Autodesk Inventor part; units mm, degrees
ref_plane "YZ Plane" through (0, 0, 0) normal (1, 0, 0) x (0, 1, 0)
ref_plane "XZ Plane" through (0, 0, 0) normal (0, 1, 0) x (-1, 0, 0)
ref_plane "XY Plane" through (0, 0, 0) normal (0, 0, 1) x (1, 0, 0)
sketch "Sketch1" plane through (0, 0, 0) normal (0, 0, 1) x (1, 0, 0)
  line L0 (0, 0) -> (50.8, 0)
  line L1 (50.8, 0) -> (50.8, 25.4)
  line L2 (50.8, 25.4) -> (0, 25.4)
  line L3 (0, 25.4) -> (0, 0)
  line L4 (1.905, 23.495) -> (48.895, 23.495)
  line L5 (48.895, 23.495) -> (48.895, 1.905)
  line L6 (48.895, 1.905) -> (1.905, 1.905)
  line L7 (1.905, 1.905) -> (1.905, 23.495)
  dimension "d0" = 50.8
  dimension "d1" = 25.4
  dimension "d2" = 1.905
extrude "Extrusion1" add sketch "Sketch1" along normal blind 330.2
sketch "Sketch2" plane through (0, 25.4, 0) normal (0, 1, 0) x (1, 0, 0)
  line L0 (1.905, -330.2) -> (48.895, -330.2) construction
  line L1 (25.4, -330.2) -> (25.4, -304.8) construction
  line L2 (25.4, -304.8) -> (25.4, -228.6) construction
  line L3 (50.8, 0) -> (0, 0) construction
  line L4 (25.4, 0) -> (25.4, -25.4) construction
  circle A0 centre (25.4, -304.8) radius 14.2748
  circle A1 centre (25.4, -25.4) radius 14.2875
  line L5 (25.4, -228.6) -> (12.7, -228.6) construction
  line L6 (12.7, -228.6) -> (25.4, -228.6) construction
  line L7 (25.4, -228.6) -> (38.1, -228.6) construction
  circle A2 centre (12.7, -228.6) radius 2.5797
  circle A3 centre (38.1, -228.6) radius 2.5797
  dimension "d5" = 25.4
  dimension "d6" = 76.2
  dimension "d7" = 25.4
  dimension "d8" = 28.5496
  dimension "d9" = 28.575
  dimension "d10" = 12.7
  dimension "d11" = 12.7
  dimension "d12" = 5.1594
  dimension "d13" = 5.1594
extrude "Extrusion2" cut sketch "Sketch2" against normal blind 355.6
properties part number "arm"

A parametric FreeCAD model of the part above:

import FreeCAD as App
import Part
import Sketcher

V = App.Vector
Q = App.Units.Quantity


def add_polygon(sketch, points):
    """Adds a closed chain of lines whose ends are joined by coincident constraints."""
    first, n = sketch.GeometryCount, len(points)
    for a, b in zip(points, points[1:] + points[:1]):
        sketch.addGeometry(Part.LineSegment(App.Vector(*a, 0), App.Vector(*b, 0)), False)
    for i in range(n):
        sketch.addConstraint(Sketcher.Constraint("Coincident", first + i, 2, first + (i + 1) % n, 1))

doc = App.newDocument("Part")
body = doc.addObject("PartDesign::Body", "Body")

sketch1 = body.newObject("Sketcher::SketchObject", "Sketch")
sketch1.AttachmentSupport = (doc.getObject("XY_Plane"), [""])
sketch1.MapMode = "FlatFace"
add_polygon(sketch1, [(0, 25.4), (0, 0), (50.8, 0), (50.8, 25.4)])
add_polygon(sketch1, [(1.905, 1.905), (1.905, 23.495), (48.895, 23.495), (48.895, 1.905)])
sketch1.addConstraint([
    Sketcher.Constraint("Vertical", 0),
    Sketcher.Constraint("Horizontal", 1),
    Sketcher.Constraint("Vertical", 2),
    Sketcher.Constraint("Horizontal", 3),
    Sketcher.Constraint("Vertical", 4),
    Sketcher.Constraint("Horizontal", 5),
    Sketcher.Constraint("Vertical", 6),
    Sketcher.Constraint("Horizontal", 7),
    Sketcher.Constraint("Coincident", 0, 2, -1, 1),
    Sketcher.Constraint("DistanceX", 1, 1, 1, 2, Q("2 in")),
    Sketcher.Constraint("DistanceY", 0, 2, 0, 1, Q("1 in")),
    Sketcher.Constraint("DistanceX", -1, 1, 4, 2, Q("0.075 in")),
    Sketcher.Constraint("DistanceY", -1, 1, 6, 2, Q("0.075 in")),
    Sketcher.Constraint("DistanceY", 4, 2, 3, 2, Q("0.075 in")),
    Sketcher.Constraint("DistanceX", 5, 2, 2, 2, Q("0.075 in")),
])
pad1 = body.newObject("PartDesign::Pad", "Pad")
pad1.Profile = sketch1
pad1.Length = Q("13 in")

sketch2 = body.newObject("Sketcher::SketchObject", "Sketch001")
sketch2.AttachmentSupport = (doc.getObject("XZ_Plane"), [""])
sketch2.MapMode = "FlatFace"
sketch2.AttachmentOffset = App.Placement(V(0, 0, -1 * 25.4), App.Rotation())
sketch2.addGeometry([
    Part.Circle(V(25.4, 304.8, 0), V(0, 0, 1), 14.2748),
    Part.Circle(V(25.4, 25.4, 0), V(0, 0, 1), 14.2875),
    Part.Circle(V(12.7, 228.6, 0), V(0, 0, 1), 2.5797),
    Part.Circle(V(38.1, 228.6, 0), V(0, 0, 1), 2.5797),
], False)
sketch2.addConstraint([
    Sketcher.Constraint("Equal", 2, 3),
    Sketcher.Constraint("Horizontal", 2, 3, 3, 3),
    Sketcher.Constraint("Vertical", 0, 3, 1, 3),
    Sketcher.Constraint("Diameter", 0, Q("1.124 in")),
    Sketcher.Constraint("Diameter", 1, Q("1.125 in")),
    Sketcher.Constraint("Diameter", 2, Q("0.203126 in")),
    Sketcher.Constraint("DistanceX", -1, 1, 0, 3, Q("1 in")),
    Sketcher.Constraint("DistanceY", -1, 1, 1, 3, Q("1 in")),
    Sketcher.Constraint("DistanceY", 2, 3, 0, 3, Q("3 in")),
    Sketcher.Constraint("DistanceX", 2, 3, 3, 3, Q("1 in")),
    Sketcher.Constraint("DistanceX", -1, 1, 2, 3, Q("0.5 in")),
    Sketcher.Constraint("DistanceY", -1, 1, 0, 3, Q("12 in")),
])
pocket1 = body.newObject("PartDesign::Pocket", "Pocket")
pocket1.Profile = sketch2
pocket1.Length = Q("14 in")
pocket1.Reversed = True

doc.recompute()
